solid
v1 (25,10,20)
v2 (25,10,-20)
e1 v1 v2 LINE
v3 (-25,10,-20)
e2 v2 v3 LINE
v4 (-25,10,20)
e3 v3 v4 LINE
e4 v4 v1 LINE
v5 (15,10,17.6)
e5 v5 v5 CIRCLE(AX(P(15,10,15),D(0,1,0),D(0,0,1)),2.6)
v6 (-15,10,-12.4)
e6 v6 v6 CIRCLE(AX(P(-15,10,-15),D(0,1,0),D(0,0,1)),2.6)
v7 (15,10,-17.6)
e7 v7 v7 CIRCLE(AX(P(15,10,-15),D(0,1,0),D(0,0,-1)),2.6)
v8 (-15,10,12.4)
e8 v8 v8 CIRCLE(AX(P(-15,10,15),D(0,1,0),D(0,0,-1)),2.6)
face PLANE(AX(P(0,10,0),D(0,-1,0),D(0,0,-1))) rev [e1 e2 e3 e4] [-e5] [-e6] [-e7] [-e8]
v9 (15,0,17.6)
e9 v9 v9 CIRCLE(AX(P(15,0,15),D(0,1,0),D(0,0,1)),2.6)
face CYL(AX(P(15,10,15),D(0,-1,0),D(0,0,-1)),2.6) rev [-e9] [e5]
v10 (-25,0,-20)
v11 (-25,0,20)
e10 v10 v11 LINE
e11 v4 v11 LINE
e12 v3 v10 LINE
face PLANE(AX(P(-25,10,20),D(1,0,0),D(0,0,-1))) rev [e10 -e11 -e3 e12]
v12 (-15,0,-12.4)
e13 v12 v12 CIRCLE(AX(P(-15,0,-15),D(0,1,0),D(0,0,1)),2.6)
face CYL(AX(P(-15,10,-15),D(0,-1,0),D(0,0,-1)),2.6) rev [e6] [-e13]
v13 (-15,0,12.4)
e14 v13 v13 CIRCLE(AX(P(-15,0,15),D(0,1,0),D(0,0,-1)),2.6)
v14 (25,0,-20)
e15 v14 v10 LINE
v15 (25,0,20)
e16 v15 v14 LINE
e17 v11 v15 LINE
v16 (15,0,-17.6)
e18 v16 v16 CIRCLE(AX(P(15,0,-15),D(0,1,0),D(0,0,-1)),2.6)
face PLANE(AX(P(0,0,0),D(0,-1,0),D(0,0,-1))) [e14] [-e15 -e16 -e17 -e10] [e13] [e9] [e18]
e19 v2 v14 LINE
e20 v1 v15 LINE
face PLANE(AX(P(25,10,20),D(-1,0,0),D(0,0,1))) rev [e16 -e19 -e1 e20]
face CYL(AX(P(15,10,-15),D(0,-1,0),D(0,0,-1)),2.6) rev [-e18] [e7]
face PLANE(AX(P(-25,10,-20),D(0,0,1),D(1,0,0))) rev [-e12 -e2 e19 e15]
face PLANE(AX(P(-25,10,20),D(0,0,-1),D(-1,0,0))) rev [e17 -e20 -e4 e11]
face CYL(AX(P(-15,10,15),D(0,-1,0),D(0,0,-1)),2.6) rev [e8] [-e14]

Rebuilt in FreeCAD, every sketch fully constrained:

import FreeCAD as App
import Part
import Sketcher
from FreeCAD import Vector

doc = App.newDocument("Part")
params = doc.addObject("Spreadsheet::Sheet", "Params")
for row, (alias, value) in enumerate([
    ("sketch1_diameter", "5.2 mm"),
    ("sketch1_width", "50 mm"),
    ("sketch1_height", "40 mm"),
    ("pad1_length", "10 mm"),
], start=1):
    params.set(f"A{row}", alias)
    params.set(f"B{row}", "=" + value)
    params.setAlias(f"B{row}", alias)

body = doc.addObject("PartDesign::Body", "Body")

sketch1 = doc.addObject("Sketcher::SketchObject", "Sketch")
body.addObject(sketch1)
sketch1.AttachmentSupport = (doc.XZ_Plane, [""])
sketch1.MapMode = "FlatFace"
sketch1.addGeometry(Part.LineSegment(Vector(-25, -20, 0), Vector(-25, 20, 0)), False)
sketch1.addGeometry(Part.LineSegment(Vector(-25, 20, 0), Vector(25, 20, 0)), False)
sketch1.addGeometry(Part.LineSegment(Vector(25, 20, 0), Vector(25, -20, 0)), False)
sketch1.addGeometry(Part.LineSegment(Vector(25, -20, 0), Vector(-25, -20, 0)), False)
sketch1.addGeometry(Part.Circle(Vector(-15, 15, 0), Vector(0, 0, 1), 2.6), False)
sketch1.addGeometry(Part.Circle(Vector(15, 15, 0), Vector(0, 0, 1), 2.6), False)
sketch1.addGeometry(Part.Circle(Vector(-15, -15, 0), Vector(0, 0, 1), 2.6), False)
sketch1.addGeometry(Part.Circle(Vector(15, -15, 0), Vector(0, 0, 1), 2.6), False)
sketch1.addConstraint(Sketcher.Constraint("Coincident", 0, 2, 1, 1))
sketch1.addConstraint(Sketcher.Constraint("Coincident", 1, 2, 2, 1))
sketch1.addConstraint(Sketcher.Constraint("Coincident", 2, 2, 3, 1))
sketch1.addConstraint(Sketcher.Constraint("Coincident", 3, 2, 0, 1))
sketch1.addConstraint(Sketcher.Constraint("Vertical", 0))
sketch1.addConstraint(Sketcher.Constraint("Horizontal", 1))
sketch1.addConstraint(Sketcher.Constraint("Vertical", 2))
sketch1.addConstraint(Sketcher.Constraint("Horizontal", 3))
sketch1.addConstraint(Sketcher.Constraint("Equal", 4, 5))
sketch1.addConstraint(Sketcher.Constraint("Equal", 5, 6))
sketch1.addConstraint(Sketcher.Constraint("Equal", 6, 7))
sketch1.addConstraint(Sketcher.Constraint("Symmetric", 5, 3, 6, 3, -1, 1))
sketch1.addConstraint(Sketcher.Constraint("Symmetric", 4, 3, 7, 3, -1, 1))
sketch1.addConstraint(Sketcher.Constraint("Symmetric", 0, 2, 2, 2, -1, 1))
sketch1.addConstraint(Sketcher.Constraint("Symmetric", 4, 3, 5, 3, -2))
sketch1.addConstraint(Sketcher.Constraint("Diameter", 4, 5.2))
sketch1.addConstraint(Sketcher.Constraint("DistanceX", 1, 1, 1, 2, 50.0))
sketch1.addConstraint(Sketcher.Constraint("DistanceY", 0, 1, 0, 2, 40.0))
sketch1.addConstraint(Sketcher.Constraint("DistanceX", 4, 3, -1, 1, 15.0))
sketch1.addConstraint(Sketcher.Constraint("DistanceY", -1, 1, 4, 3, 15.0))
sketch1.setExpression("Constraints[15]", "Params.sketch1_diameter")
sketch1.setExpression("Constraints[16]", "Params.sketch1_width")
sketch1.setExpression("Constraints[17]", "Params.sketch1_height")
pad1 = doc.addObject("PartDesign::Pad", "Pad")
body.addObject(pad1)
pad1.Profile = sketch1
pad1.setExpression("Length", "Params.pad1_length")
pad1.Reversed = True

doc.recompute()
